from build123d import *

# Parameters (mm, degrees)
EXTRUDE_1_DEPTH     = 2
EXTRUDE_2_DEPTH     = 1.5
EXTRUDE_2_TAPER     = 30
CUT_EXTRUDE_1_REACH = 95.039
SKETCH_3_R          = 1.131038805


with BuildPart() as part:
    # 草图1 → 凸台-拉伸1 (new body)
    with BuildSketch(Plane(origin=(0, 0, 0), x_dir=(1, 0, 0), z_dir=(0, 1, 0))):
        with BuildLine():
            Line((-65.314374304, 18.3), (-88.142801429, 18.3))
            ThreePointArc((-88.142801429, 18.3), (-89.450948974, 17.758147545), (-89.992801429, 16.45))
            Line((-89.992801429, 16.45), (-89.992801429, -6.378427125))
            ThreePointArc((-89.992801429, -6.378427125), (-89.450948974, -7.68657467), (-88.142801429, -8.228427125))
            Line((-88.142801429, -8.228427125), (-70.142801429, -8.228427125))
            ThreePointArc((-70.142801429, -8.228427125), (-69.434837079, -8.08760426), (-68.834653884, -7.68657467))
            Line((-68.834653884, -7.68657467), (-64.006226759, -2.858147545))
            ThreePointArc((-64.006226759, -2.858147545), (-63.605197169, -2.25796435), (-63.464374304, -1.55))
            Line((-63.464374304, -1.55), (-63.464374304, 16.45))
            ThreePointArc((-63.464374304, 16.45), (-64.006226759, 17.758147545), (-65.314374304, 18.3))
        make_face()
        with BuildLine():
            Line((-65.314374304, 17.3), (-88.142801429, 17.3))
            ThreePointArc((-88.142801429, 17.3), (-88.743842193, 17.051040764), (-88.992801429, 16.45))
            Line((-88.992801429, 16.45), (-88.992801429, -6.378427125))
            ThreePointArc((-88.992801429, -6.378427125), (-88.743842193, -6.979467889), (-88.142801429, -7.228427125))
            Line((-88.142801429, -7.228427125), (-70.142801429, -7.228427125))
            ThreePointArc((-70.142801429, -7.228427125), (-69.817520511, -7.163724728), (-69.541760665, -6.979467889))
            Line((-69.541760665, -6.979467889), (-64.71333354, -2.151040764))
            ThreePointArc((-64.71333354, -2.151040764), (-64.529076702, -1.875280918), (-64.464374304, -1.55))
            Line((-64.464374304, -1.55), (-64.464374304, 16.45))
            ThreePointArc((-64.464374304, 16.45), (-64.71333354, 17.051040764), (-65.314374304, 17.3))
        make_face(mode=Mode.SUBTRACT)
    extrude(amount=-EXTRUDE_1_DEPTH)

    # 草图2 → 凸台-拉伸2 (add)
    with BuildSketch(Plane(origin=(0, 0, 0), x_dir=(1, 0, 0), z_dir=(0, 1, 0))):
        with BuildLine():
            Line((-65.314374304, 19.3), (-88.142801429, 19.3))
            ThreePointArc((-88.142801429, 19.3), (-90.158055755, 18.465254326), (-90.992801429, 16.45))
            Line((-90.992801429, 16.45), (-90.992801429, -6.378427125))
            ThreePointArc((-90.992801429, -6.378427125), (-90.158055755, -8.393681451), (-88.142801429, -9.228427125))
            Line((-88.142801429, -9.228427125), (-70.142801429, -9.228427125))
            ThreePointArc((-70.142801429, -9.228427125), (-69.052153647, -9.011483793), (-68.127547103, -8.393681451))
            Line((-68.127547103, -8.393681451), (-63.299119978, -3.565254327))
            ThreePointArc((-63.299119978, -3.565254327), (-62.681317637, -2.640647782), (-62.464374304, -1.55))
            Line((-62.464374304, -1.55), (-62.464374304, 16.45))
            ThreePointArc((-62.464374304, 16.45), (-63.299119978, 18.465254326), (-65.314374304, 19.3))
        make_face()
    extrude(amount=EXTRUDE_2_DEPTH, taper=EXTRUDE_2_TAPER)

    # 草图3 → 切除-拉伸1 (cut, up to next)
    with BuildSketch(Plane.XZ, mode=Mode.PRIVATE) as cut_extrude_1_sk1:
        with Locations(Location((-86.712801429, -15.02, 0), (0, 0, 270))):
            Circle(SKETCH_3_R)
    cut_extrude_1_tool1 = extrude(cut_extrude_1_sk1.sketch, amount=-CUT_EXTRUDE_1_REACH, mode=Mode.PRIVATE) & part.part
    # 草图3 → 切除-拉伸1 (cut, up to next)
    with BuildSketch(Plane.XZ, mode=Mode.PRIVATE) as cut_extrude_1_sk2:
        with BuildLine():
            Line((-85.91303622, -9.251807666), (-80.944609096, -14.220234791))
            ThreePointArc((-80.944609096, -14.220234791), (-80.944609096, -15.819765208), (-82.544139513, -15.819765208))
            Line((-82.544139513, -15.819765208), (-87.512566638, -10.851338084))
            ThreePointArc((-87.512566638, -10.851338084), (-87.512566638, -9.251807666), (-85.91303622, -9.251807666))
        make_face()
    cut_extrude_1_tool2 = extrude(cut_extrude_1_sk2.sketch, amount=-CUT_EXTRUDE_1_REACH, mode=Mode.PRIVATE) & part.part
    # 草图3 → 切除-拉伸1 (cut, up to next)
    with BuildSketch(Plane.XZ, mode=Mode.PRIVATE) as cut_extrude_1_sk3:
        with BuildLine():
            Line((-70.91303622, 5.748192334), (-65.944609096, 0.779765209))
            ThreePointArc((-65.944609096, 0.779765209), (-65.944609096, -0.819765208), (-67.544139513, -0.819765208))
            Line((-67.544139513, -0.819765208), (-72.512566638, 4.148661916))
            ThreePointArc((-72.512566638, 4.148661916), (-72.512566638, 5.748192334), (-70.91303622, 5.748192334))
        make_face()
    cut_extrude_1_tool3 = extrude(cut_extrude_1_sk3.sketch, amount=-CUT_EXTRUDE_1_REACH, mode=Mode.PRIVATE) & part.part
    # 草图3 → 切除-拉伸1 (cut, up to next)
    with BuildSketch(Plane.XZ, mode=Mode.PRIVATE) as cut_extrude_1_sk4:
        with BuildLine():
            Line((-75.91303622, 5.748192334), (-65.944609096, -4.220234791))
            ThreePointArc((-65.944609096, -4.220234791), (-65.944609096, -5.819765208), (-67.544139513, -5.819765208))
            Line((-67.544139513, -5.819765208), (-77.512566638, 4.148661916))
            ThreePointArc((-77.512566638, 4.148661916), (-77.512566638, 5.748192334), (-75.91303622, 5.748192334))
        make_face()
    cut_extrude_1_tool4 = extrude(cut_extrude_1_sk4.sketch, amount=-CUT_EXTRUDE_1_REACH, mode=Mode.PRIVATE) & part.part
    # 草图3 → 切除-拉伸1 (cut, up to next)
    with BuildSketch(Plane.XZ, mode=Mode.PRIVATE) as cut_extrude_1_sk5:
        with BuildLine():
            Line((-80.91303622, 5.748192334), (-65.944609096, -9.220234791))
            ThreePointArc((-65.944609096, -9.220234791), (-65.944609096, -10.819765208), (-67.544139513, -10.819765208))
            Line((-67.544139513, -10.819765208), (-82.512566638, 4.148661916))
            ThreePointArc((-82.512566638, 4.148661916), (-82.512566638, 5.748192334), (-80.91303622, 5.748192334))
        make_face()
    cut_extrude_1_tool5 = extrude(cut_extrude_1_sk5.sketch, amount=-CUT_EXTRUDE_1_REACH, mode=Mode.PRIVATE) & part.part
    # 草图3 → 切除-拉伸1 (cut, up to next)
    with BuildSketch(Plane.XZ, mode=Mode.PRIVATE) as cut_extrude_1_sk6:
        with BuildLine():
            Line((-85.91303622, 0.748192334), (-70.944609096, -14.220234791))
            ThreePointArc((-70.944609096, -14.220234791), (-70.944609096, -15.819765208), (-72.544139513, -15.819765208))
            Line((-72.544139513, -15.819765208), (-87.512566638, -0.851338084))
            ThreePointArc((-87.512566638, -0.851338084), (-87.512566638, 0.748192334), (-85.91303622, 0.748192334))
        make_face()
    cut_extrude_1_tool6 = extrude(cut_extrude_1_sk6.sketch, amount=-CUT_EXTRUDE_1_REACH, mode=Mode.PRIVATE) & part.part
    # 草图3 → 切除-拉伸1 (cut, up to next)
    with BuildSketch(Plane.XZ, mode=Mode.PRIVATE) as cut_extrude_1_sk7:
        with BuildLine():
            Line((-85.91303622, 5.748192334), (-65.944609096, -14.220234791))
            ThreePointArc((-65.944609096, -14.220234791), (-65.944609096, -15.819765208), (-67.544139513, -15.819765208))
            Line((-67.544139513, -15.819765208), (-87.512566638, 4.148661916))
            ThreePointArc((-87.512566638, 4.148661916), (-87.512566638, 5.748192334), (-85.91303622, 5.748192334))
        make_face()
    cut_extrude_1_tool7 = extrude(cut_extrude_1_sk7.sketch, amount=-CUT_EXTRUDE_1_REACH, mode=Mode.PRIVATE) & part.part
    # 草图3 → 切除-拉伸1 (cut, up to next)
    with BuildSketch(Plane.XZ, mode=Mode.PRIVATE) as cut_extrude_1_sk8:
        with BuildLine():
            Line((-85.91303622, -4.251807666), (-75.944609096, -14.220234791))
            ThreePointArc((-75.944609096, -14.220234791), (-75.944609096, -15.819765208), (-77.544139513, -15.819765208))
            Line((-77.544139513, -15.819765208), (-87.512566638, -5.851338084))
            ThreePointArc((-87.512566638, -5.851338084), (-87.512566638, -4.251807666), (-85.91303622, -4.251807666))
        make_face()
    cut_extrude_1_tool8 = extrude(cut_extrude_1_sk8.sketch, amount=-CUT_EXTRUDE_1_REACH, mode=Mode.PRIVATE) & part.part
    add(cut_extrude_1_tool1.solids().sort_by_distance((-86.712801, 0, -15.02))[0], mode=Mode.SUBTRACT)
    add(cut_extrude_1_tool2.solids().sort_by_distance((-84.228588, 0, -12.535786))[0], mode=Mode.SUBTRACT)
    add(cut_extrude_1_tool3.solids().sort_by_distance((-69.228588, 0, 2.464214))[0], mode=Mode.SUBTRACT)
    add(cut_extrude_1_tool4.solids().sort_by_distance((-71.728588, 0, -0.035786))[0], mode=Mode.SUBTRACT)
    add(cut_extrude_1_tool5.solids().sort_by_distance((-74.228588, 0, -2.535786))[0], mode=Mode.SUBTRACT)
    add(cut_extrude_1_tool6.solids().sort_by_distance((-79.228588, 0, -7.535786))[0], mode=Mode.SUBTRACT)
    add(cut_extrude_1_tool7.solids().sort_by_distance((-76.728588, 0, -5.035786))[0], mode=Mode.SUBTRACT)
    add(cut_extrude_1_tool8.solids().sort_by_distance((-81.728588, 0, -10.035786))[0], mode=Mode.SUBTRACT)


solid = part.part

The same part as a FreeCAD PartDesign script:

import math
import FreeCAD as App
import Part
import Sketcher
Q = App.Units.Quantity

doc = App.newDocument("Part")
body = doc.addObject("PartDesign::Body", "Body")

sketch1 = body.newObject("Sketcher::SketchObject", "Sketch")
sketch1.AttachmentSupport = (doc.getObject("XZ_Plane"), [""])
sketch1.MapMode = "FlatFace"
sketch1.addGeometry([
    Part.LineSegment(App.Vector(-65.3, -18.3, 0), App.Vector(-88.1, -18.3, 0)),
    Part.ArcOfCircle(Part.Circle(App.Vector(-88.1, -16.4, 0), App.Vector(0, 0, 1), 1.9), math.radians(-180), math.radians(-90)),
    Part.LineSegment(App.Vector(-90, -16.4, 0), App.Vector(-90, 6.4, 0)),
    Part.ArcOfCircle(Part.Circle(App.Vector(-88.1, 6.4, 0), App.Vector(0, 0, 1), 1.9), math.radians(90), math.radians(180)),
    Part.LineSegment(App.Vector(-88.1, 8.2, 0), App.Vector(-70.1, 8.2, 0)),
    Part.ArcOfCircle(Part.Circle(App.Vector(-70.1, 6.4, 0), App.Vector(0, 0, 1), 1.8), math.radians(45), math.radians(90)),
    Part.LineSegment(App.Vector(-68.8, 7.7, 0), App.Vector(-64, 2.9, 0)),
    Part.ArcOfCircle(Part.Circle(App.Vector(-65.3, 1.6, 0), App.Vector(0, 0, 1), 1.8), math.radians(0), math.radians(45)),
    Part.LineSegment(App.Vector(-63.5, 1.6, 0), App.Vector(-63.5, -16.4, 0)),
    Part.ArcOfCircle(Part.Circle(App.Vector(-65.3, -16.4, 0), App.Vector(0, 0, 1), 1.9), math.radians(-90), math.radians(0)),
    Part.LineSegment(App.Vector(-88.1, -17.3, 0), App.Vector(-65.3, -17.3, 0)),
    Part.ArcOfCircle(Part.Circle(App.Vector(-65.3, -16.4, 0), App.Vector(0, 0, 1), 0.8), math.radians(-90), math.radians(0)),
    Part.LineSegment(App.Vector(-64.5, -16.4, 0), App.Vector(-64.5, 1.6, 0)),
    Part.ArcOfCircle(Part.Circle(App.Vector(-65.3, 1.5, 0), App.Vector(0, 0, 1), 0.9), math.radians(0), math.radians(45)),
    Part.LineSegment(App.Vector(-64.7, 2.2, 0), App.Vector(-69.5, 7, 0)),
    Part.ArcOfCircle(Part.Circle(App.Vector(-70.1, 6.4, 0), App.Vector(0, 0, 1), 0.8), math.radians(45), math.radians(90)),
    Part.LineSegment(App.Vector(-70.1, 7.2, 0), App.Vector(-88.1, 7.2, 0)),
    Part.ArcOfCircle(Part.Circle(App.Vector(-88.1, 6.4, 0), App.Vector(0, 0, 1), 0.8), math.radians(90), math.radians(180)),
    Part.LineSegment(App.Vector(-89, 6.4, 0), App.Vector(-89, -16.4, 0)),
    Part.ArcOfCircle(Part.Circle(App.Vector(-88.1, -16.4, 0), App.Vector(0, 0, 1), 0.8), math.radians(180), math.radians(270)),
], False)
sketch1.addConstraint([
    Sketcher.Constraint("Tangent", 0, 2, 1, 2),
    Sketcher.Constraint("Tangent", 1, 1, 2, 1),
    Sketcher.Constraint("Tangent", 2, 2, 3, 2),
    Sketcher.Constraint("Tangent", 3, 1, 4, 1),
    Sketcher.Constraint("Tangent", 4, 2, 5, 2),
    Sketcher.Constraint("Tangent", 5, 1, 6, 1),
    Sketcher.Constraint("Tangent", 6, 2, 7, 2),
    Sketcher.Constraint("Tangent", 7, 1, 8, 1),
    Sketcher.Constraint("Tangent", 8, 2, 9, 2),
    Sketcher.Constraint("Tangent", 9, 1, 0, 1),
    Sketcher.Constraint("Tangent", 10, 2, 11, 1),
    Sketcher.Constraint("Tangent", 11, 2, 12, 1),
    Sketcher.Constraint("Tangent", 12, 2, 13, 1),
    Sketcher.Constraint("Tangent", 13, 2, 14, 1),
    Sketcher.Constraint("Tangent", 14, 2, 15, 1),
    Sketcher.Constraint("Tangent", 15, 2, 16, 1),
    Sketcher.Constraint("Tangent", 16, 2, 17, 1),
    Sketcher.Constraint("Tangent", 17, 2, 18, 1),
    Sketcher.Constraint("Tangent", 18, 2, 19, 1),
    Sketcher.Constraint("Tangent", 19, 2, 10, 1),
    Sketcher.Constraint("Horizontal", 0),
    Sketcher.Constraint("Vertical", 2),
    Sketcher.Constraint("Horizontal", 4),
    Sketcher.Constraint("Vertical", 8),
    Sketcher.Constraint("Horizontal", 10),
    Sketcher.Constraint("Vertical", 12),
    Sketcher.Constraint("Horizontal", 16),
    Sketcher.Constraint("Vertical", 18),
    Sketcher.Constraint("Coincident", 11, 3, 9, 3),
    Sketcher.Constraint("Coincident", 13, 3, 7, 3),
    Sketcher.Constraint("Coincident", 15, 3, 5, 3),
    Sketcher.Constraint("Coincident", 17, 3, 3, 3),
    Sketcher.Constraint("Coincident", 19, 3, 1, 3),
    Sketcher.Constraint("Equal", 1, 3),
    Sketcher.Constraint("Equal", 3, 5),
    Sketcher.Constraint("Equal", 5, 7),
    Sketcher.Constraint("Equal", 7, 9),
    Sketcher.Constraint("Equal", 10, 2),
    Sketcher.Constraint("Equal", 16, 8),
    Sketcher.Constraint("DistanceX", 4, 1, 4, 2, Q("18 mm")),
    Sketcher.Constraint("Radius", 1, Q("1.85 mm")),
    Sketcher.Constraint("Radius", 11, Q("0.85 mm")),
    Sketcher.Constraint("DistanceY", 0, 2, -1, 1, Q("18.3 mm")),
    Sketcher.Constraint("DistanceX", 1, 3, -1, 1, Q("88.142801 mm")),
    Sketcher.Constraint("DistanceX", 0, 2, 0, 1, Q("22.828427 mm")),
])
pad1 = body.newObject("PartDesign::Pad", "Pad")
pad1.Profile = sketch1
pad1.Length = 2

sketch2 = body.newObject("Sketcher::SketchObject", "Sketch001")
sketch2.AttachmentSupport = (doc.getObject("XZ_Plane"), [""])
sketch2.MapMode = "FlatFace"
sketch2.addGeometry([
    Part.LineSegment(App.Vector(-65.3, -19.3, 0), App.Vector(-88.1, -19.3, 0)),
    Part.ArcOfCircle(Part.Circle(App.Vector(-88.1, -16.4, 0), App.Vector(0, 0, 1), 2.9), math.radians(-180), math.radians(-90)),
    Part.LineSegment(App.Vector(-91, -16.4, 0), App.Vector(-91, 6.4, 0)),
    Part.ArcOfCircle(Part.Circle(App.Vector(-88.1, 6.4, 0), App.Vector(0, 0, 1), 2.9), math.radians(90), math.radians(180)),
    Part.LineSegment(App.Vector(-88.1, 9.2, 0), App.Vector(-70.1, 9.2, 0)),
    Part.ArcOfCircle(Part.Circle(App.Vector(-70.1, 6.4, 0), App.Vector(0, 0, 1), 2.8), math.radians(45), math.radians(90)),
    Part.LineSegment(App.Vector(-68.1, 8.4, 0), App.Vector(-63.3, 3.6, 0)),
    Part.ArcOfCircle(Part.Circle(App.Vector(-65.3, 1.5, 0), App.Vector(0, 0, 1), 2.9), math.radians(0), math.radians(45)),
    Part.LineSegment(App.Vector(-62.5, 1.6, 0), App.Vector(-62.5, -16.4, 0)),
    Part.ArcOfCircle(Part.Circle(App.Vector(-65.3, -16.4, 0), App.Vector(0, 0, 1), 2.9), math.radians(-90), math.radians(0)),
], False)
sketch2.addConstraint([
    Sketcher.Constraint("Tangent", 0, 2, 1, 2),
    Sketcher.Constraint("Tangent", 1, 1, 2, 1),
    Sketcher.Constraint("Tangent", 2, 2, 3, 2),
    Sketcher.Constraint("Tangent", 3, 1, 4, 1),
    Sketcher.Constraint("Tangent", 4, 2, 5, 2),
    Sketcher.Constraint("Tangent", 5, 1, 6, 1),
    Sketcher.Constraint("Tangent", 6, 2, 7, 2),
    Sketcher.Constraint("Tangent", 7, 1, 8, 1),
    Sketcher.Constraint("Tangent", 8, 2, 9, 2),
    Sketcher.Constraint("Tangent", 9, 1, 0, 1),
    Sketcher.Constraint("Horizontal", 0),
    Sketcher.Constraint("Vertical", 2),
    Sketcher.Constraint("Horizontal", 4),
    Sketcher.Constraint("Vertical", 8),
    Sketcher.Constraint("Equal", 1, 3),
    Sketcher.Constraint("Equal", 3, 5),
    Sketcher.Constraint("Equal", 5, 7),
    Sketcher.Constraint("Equal", 7, 9),
    Sketcher.Constraint("Equal", 0, 2),
    Sketcher.Constraint("Equal", 4, 8),
    Sketcher.Constraint("DistanceX", 4, 1, 4, 2, Q("18 mm")),
    Sketcher.Constraint("Radius", 1, Q("2.85 mm")),
    Sketcher.Constraint("DistanceY", 0, 2, -1, 1, Q("19.3 mm")),
    Sketcher.Constraint("DistanceX", 1, 3, -1, 1, Q("88.142801 mm")),
    Sketcher.Constraint("DistanceX", 0, 2, 0, 1, Q("22.828427 mm")),
])
pad2 = body.newObject("PartDesign::Pad", "Pad001")
pad2.Profile = sketch2
pad2.Length = 1.5
pad2.Reversed = True
pad2.TaperAngle = -30

sketch3 = body.newObject("Sketcher::SketchObject", "Sketch002")
sketch3.AttachmentSupport = (doc.getObject("XZ_Plane"), [""])
sketch3.MapMode = "FlatFace"
sketch3.addGeometry(Part.Circle(App.Vector(-86.7, -15, 0), App.Vector(0, 0, 1), 1.1), False)
sketch3.addConstraint([
    Sketcher.Constraint("DistanceY", 0, 3, -1, 1, Q("15.02 mm")),
    Sketcher.Constraint("Diameter", 0, Q("2.262078 mm")),
    Sketcher.Constraint("DistanceX", 0, 3, -1, 1, Q("86.712801 mm")),
])
pocket1 = body.newObject("PartDesign::Pocket", "Pocket")
pocket1.Profile = sketch3
pocket1.Type = "UpToFirst"

sketch4 = body.newObject("Sketcher::SketchObject", "Sketch003")
sketch4.AttachmentSupport = (doc.getObject("XZ_Plane"), [""])
sketch4.MapMode = "FlatFace"
sketch4.addGeometry([
    Part.LineSegment(App.Vector(-80.9, -14.2, 0), App.Vector(-85.9, -9.3, 0)),
    Part.ArcOfCircle(Part.Circle(App.Vector(-86.7, -10.1, 0), App.Vector(0, 0, 1), 1.1), math.radians(45), math.radians(225)),
    Part.LineSegment(App.Vector(-87.5, -10.9, 0), App.Vector(-82.5, -15.8, 0)),
    Part.ArcOfCircle(Part.Circle(App.Vector(-81.7, -15, 0), App.Vector(0, 0, 1), 1.1), math.radians(-135), math.radians(45)),
], False)
sketch4.addConstraint([
    Sketcher.Constraint("Tangent", 0, 2, 1, 1),
    Sketcher.Constraint("Tangent", 1, 2, 2, 1),
    Sketcher.Constraint("Tangent", 2, 2, 3, 1),
    Sketcher.Constraint("Tangent", 3, 2, 0, 1),
    Sketcher.Constraint("Equal", 1, 3),
    Sketcher.Constraint("Angle", 0, Q("135 deg")),
    Sketcher.Constraint("DistanceY", 3, 3, -1, 1, Q("15.02 mm")),
    Sketcher.Constraint("Radius", 1, Q("1.131039 mm")),
    Sketcher.Constraint("DistanceX", 1, 3, -1, 1, Q("86.712801 mm")),
    Sketcher.Constraint("DistanceY", 1, 2, -1, 1, Q("10.851338 mm")),
])
pocket2 = body.newObject("PartDesign::Pocket", "Pocket001")
pocket2.Profile = sketch4
pocket2.Type = "UpToFirst"

sketch5 = body.newObject("Sketcher::SketchObject", "Sketch004")
sketch5.AttachmentSupport = (doc.getObject("XZ_Plane"), [""])
sketch5.MapMode = "FlatFace"
sketch5.addGeometry([
    Part.LineSegment(App.Vector(-65.9, 0.8, 0), App.Vector(-70.9, 5.7, 0)),
    Part.ArcOfCircle(Part.Circle(App.Vector(-71.7, 4.9, 0), App.Vector(0, 0, 1), 1.1), math.radians(45), math.radians(225)),
    Part.LineSegment(App.Vector(-72.5, 4.1, 0), App.Vector(-67.5, -0.8, 0)),
    Part.ArcOfCircle(Part.Circle(App.Vector(-66.7, 0, 0), App.Vector(0, 0, 1), 1.1), math.radians(-135), math.radians(45)),
], False)
sketch5.addConstraint([
    Sketcher.Constraint("Tangent", 0, 2, 1, 1),
    Sketcher.Constraint("Tangent", 1, 2, 2, 1),
    Sketcher.Constraint("Tangent", 2, 2, 3, 1),
    Sketcher.Constraint("Tangent", 3, 2, 0, 1),
    Sketcher.Constraint("Equal", 1, 3),
    Sketcher.Constraint("Angle", 0, Q("135 deg")),
    Sketcher.Constraint("DistanceY", 3, 3, -1, 1, Q("0.02 mm")),
    Sketcher.Constraint("Radius", 1, Q("1.131039 mm")),
    Sketcher.Constraint("DistanceX", 1, 3, -1, 1, Q("71.712801 mm")),
    Sketcher.Constraint("DistanceY", -1, 1, 1, 2, Q("4.148662 mm")),
])
pocket3 = body.newObject("PartDesign::Pocket", "Pocket002")
pocket3.Profile = sketch5
pocket3.Type = "UpToFirst"

sketch6 = body.newObject("Sketcher::SketchObject", "Sketch005")
sketch6.AttachmentSupport = (doc.getObject("XZ_Plane"), [""])
sketch6.MapMode = "FlatFace"
sketch6.addGeometry([
    Part.LineSegment(App.Vector(-65.9, -4.2, 0), App.Vector(-75.9, 5.7, 0)),
    Part.ArcOfCircle(Part.Circle(App.Vector(-76.7, 4.9, 0), App.Vector(0, 0, 1), 1.1), math.radians(45), math.radians(225)),
    Part.LineSegment(App.Vector(-77.5, 4.1, 0), App.Vector(-67.5, -5.8, 0)),
    Part.ArcOfCircle(Part.Circle(App.Vector(-66.7, -5, 0), App.Vector(0, 0, 1), 1.1), math.radians(-135), math.radians(45)),
], False)
sketch6.addConstraint([
    Sketcher.Constraint("Tangent", 0, 2, 1, 1),
    Sketcher.Constraint("Tangent", 1, 2, 2, 1),
    Sketcher.Constraint("Tangent", 2, 2, 3, 1),
    Sketcher.Constraint("Tangent", 3, 2, 0, 1),
    Sketcher.Constraint("Equal", 1, 3),
    Sketcher.Constraint("Angle", 0, Q("135 deg")),
    Sketcher.Constraint("DistanceY", 3, 3, -1, 1, Q("5.02 mm")),
    Sketcher.Constraint("Radius", 1, Q("1.131039 mm")),
    Sketcher.Constraint("DistanceX", 1, 3, -1, 1, Q("76.712801 mm")),
    Sketcher.Constraint("DistanceY", -1, 1, 1, 2, Q("4.148662 mm")),
])
pocket4 = body.newObject("PartDesign::Pocket", "Pocket003")
pocket4.Profile = sketch6
pocket4.Type = "UpToFirst"

sketch7 = body.newObject("Sketcher::SketchObject", "Sketch006")
sketch7.AttachmentSupport = (doc.getObject("XZ_Plane"), [""])
sketch7.MapMode = "FlatFace"
sketch7.addGeometry([
    Part.LineSegment(App.Vector(-65.9, -9.2, 0), App.Vector(-80.9, 5.7, 0)),
    Part.ArcOfCircle(Part.Circle(App.Vector(-81.7, 4.9, 0), App.Vector(0, 0, 1), 1.1), math.radians(45), math.radians(225)),
    Part.LineSegment(App.Vector(-82.5, 4.1, 0), App.Vector(-67.5, -10.8, 0)),
    Part.ArcOfCircle(Part.Circle(App.Vector(-66.7, -10, 0), App.Vector(0, 0, 1), 1.1), math.radians(-135), math.radians(45)),
], False)
sketch7.addConstraint([
    Sketcher.Constraint("Tangent", 0, 2, 1, 1),
    Sketcher.Constraint("Tangent", 1, 2, 2, 1),
    Sketcher.Constraint("Tangent", 2, 2, 3, 1),
    Sketcher.Constraint("Tangent", 3, 2, 0, 1),
    Sketcher.Constraint("Equal", 1, 3),
    Sketcher.Constraint("Angle", 0, Q("135 deg")),
    Sketcher.Constraint("DistanceY", 3, 3, -1, 1, Q("10.02 mm")),
    Sketcher.Constraint("Radius", 1, Q("1.131039 mm")),
    Sketcher.Constraint("DistanceX", 1, 3, -1, 1, Q("81.712801 mm")),
    Sketcher.Constraint("DistanceY", -1, 1, 1, 2, Q("4.148662 mm")),
])
pocket5 = body.newObject("PartDesign::Pocket", "Pocket004")
pocket5.Profile = sketch7
pocket5.Type = "UpToFirst"

sketch8 = body.newObject("Sketcher::SketchObject", "Sketch007")
sketch8.AttachmentSupport = (doc.getObject("XZ_Plane"), [""])
sketch8.MapMode = "FlatFace"
sketch8.addGeometry([
    Part.LineSegment(App.Vector(-70.9, -14.2, 0), App.Vector(-85.9, 0.7, 0)),
    Part.ArcOfCircle(Part.Circle(App.Vector(-86.7, -0.1, 0), App.Vector(0, 0, 1), 1.1), math.radians(45), math.radians(225)),
    Part.LineSegment(App.Vector(-87.5, -0.9, 0), App.Vector(-72.5, -15.8, 0)),
    Part.ArcOfCircle(Part.Circle(App.Vector(-71.7, -15, 0), App.Vector(0, 0, 1), 1.1), math.radians(-135), math.radians(45)),
], False)
sketch8.addConstraint([
    Sketcher.Constraint("Tangent", 0, 2, 1, 1),
    Sketcher.Constraint("Tangent", 1, 2, 2, 1),
    Sketcher.Constraint("Tangent", 2, 2, 3, 1),
    Sketcher.Constraint("Tangent", 3, 2, 0, 1),
    Sketcher.Constraint("Equal", 1, 3),
    Sketcher.Constraint("Angle", 0, Q("135 deg")),
    Sketcher.Constraint("DistanceY", 3, 3, -1, 1, Q("15.02 mm")),
    Sketcher.Constraint("Radius", 1, Q("1.131039 mm")),
    Sketcher.Constraint("DistanceX", 1, 3, -1, 1, Q("86.712801 mm")),
    Sketcher.Constraint("DistanceY", 1, 2, -1, 1, Q("0.851338 mm")),
])
pocket6 = body.newObject("PartDesign::Pocket", "Pocket005")
pocket6.Profile = sketch8
pocket6.Type = "UpToFirst"

sketch9 = body.newObject("Sketcher::SketchObject", "Sketch008")
sketch9.AttachmentSupport = (doc.getObject("XZ_Plane"), [""])
sketch9.MapMode = "FlatFace"
sketch9.addGeometry([
    Part.LineSegment(App.Vector(-65.9, -14.2, 0), App.Vector(-85.9, 5.7, 0)),
    Part.ArcOfCircle(Part.Circle(App.Vector(-86.7, 4.9, 0), App.Vector(0, 0, 1), 1.1), math.radians(45), math.radians(225)),
    Part.LineSegment(App.Vector(-87.5, 4.1, 0), App.Vector(-67.5, -15.8, 0)),
    Part.ArcOfCircle(Part.Circle(App.Vector(-66.7, -15, 0), App.Vector(0, 0, 1), 1.1), math.radians(-135), math.radians(45)),
], False)
sketch9.addConstraint([
    Sketcher.Constraint("Tangent", 0, 2, 1, 1),
    Sketcher.Constraint("Tangent", 1, 2, 2, 1),
    Sketcher.Constraint("Tangent", 2, 2, 3, 1),
    Sketcher.Constraint("Tangent", 3, 2, 0, 1),
    Sketcher.Constraint("Equal", 1, 3),
    Sketcher.Constraint("Angle", 0, Q("135 deg")),
    Sketcher.Constraint("DistanceY", 3, 3, -1, 1, Q("15.02 mm")),
    Sketcher.Constraint("Radius", 1, Q("1.131039 mm")),
    Sketcher.Constraint("DistanceX", 1, 3, -1, 1, Q("86.712801 mm")),
    Sketcher.Constraint("Distance", 0, Q("28.23962 mm")),
])
pocket7 = body.newObject("PartDesign::Pocket", "Pocket006")
pocket7.Profile = sketch9
pocket7.Type = "UpToFirst"

sketch10 = body.newObject("Sketcher::SketchObject", "Sketch009")
sketch10.AttachmentSupport = (doc.getObject("XZ_Plane"), [""])
sketch10.MapMode = "FlatFace"
sketch10.addGeometry([
    Part.LineSegment(App.Vector(-75.9, -14.2, 0), App.Vector(-85.9, -4.3, 0)),
    Part.ArcOfCircle(Part.Circle(App.Vector(-86.7, -5.1, 0), App.Vector(0, 0, 1), 1.1), math.radians(45), math.radians(225)),
    Part.LineSegment(App.Vector(-87.5, -5.9, 0), App.Vector(-77.5, -15.8, 0)),
    Part.ArcOfCircle(Part.Circle(App.Vector(-76.7, -15, 0), App.Vector(0, 0, 1), 1.1), math.radians(-135), math.radians(45)),
], False)
sketch10.addConstraint([
    Sketcher.Constraint("Tangent", 0, 2, 1, 1),
    Sketcher.Constraint("Tangent", 1, 2, 2, 1),
    Sketcher.Constraint("Tangent", 2, 2, 3, 1),
    Sketcher.Constraint("Tangent", 3, 2, 0, 1),
    Sketcher.Constraint("Equal", 1, 3),
    Sketcher.Constraint("Angle", 0, Q("135 deg")),
    Sketcher.Constraint("DistanceY", 3, 3, -1, 1, Q("15.02 mm")),
    Sketcher.Constraint("Radius", 1, Q("1.131039 mm")),
    Sketcher.Constraint("DistanceX", 1, 3, -1, 1, Q("86.712801 mm")),
    Sketcher.Constraint("DistanceY", 1, 2, -1, 1, Q("5.851338 mm")),
])
pocket8 = body.newObject("PartDesign::Pocket", "Pocket007")
pocket8.Profile = sketch10
pocket8.Type = "UpToFirst"

doc.recompute()
